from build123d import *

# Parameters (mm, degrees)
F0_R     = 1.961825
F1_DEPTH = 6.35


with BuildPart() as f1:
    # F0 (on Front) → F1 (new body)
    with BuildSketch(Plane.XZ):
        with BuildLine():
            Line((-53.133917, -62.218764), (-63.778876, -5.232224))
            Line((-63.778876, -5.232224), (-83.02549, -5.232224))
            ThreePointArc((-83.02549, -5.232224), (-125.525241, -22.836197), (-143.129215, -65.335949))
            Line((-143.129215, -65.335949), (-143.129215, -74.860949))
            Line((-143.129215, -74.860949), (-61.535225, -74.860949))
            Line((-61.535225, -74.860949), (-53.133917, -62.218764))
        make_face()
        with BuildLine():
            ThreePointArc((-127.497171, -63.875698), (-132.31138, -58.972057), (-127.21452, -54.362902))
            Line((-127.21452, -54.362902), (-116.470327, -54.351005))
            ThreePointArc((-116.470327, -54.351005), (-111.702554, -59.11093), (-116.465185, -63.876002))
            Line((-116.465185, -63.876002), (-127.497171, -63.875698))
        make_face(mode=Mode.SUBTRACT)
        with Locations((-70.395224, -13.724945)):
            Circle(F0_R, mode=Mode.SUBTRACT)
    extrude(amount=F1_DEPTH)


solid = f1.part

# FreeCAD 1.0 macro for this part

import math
import FreeCAD as App
import Part
import Sketcher

V = App.Vector
Q = App.Units.Quantity

doc = App.newDocument("Part")
params = doc.addObject("Spreadsheet::Sheet", "Params")
for row, (alias, value) in enumerate([
    ("sketch1_radius", "0.1875 in"),
    ("sketch1_height", "0.375 in"),
    ("sketch1_length", "0.423 in"),
    ("pad1_length", "0.25 in"),
], start=1):
    params.set(f"A{row}", alias)
    params.set(f"B{row}", "=" + value)
    params.setAlias(f"B{row}", alias)

body = doc.addObject("PartDesign::Body", "Body")

sketch1 = body.newObject("Sketcher::SketchObject", "Sketch")
sketch1.AttachmentSupport = (doc.getObject("XZ_Plane"), [""])
sketch1.MapMode = "FlatFace"
sketch1.addGeometry(Part.LineSegment(V(-53.1, -62.2, 0), V(-63.8, -5.2, 0)), False)
sketch1.addGeometry(Part.LineSegment(V(-63.8, -5.2, 0), V(-83, -5.2, 0)), False)
sketch1.addGeometry(Part.ArcOfCircle(Part.Circle(V(-83, -65.3, 0), V(0, 0, 1), 60.1), math.radians(90), math.radians(180)), False)
sketch1.addGeometry(Part.LineSegment(V(-143.1, -65.3, 0), V(-143.1, -74.9, 0)), False)
sketch1.addGeometry(Part.LineSegment(V(-143.1, -74.9, 0), V(-61.5, -74.9, 0)), False)
sketch1.addGeometry(Part.LineSegment(V(-61.5, -74.9, 0), V(-53.1, -62.2, 0)), False)
sketch1.addGeometry(Part.LineSegment(V(-116.5, -63.9, 0), V(-127.5, -63.9, 0)), False)
sketch1.addGeometry(Part.ArcOfCircle(Part.Circle(V(-127.6, -59.1, 0), V(0, 0, 1), 4.8), math.radians(86), math.radians(271)), False)
sketch1.addGeometry(Part.LineSegment(V(-127.2, -54.4, 0), V(-116.5, -54.4, 0)), False)
sketch1.addGeometry(Part.ArcOfCircle(Part.Circle(V(-116.5, -59.1, 0), V(0, 0, 1), 4.8), math.radians(-90), math.radians(90)), False)
sketch1.addGeometry(Part.Circle(V(-70.4, -13.7, 0), V(0, 0, 1), 2), False)
sketch1.addConstraint(Sketcher.Constraint("Coincident", 0, 2, 1, 1))
sketch1.addConstraint(Sketcher.Constraint("Tangent", 1, 2, 2, 1))
sketch1.addConstraint(Sketcher.Constraint("Tangent", 2, 2, 3, 1))
sketch1.addConstraint(Sketcher.Constraint("Coincident", 3, 2, 4, 1))
sketch1.addConstraint(Sketcher.Constraint("Coincident", 4, 2, 5, 1))
sketch1.addConstraint(Sketcher.Constraint("Coincident", 5, 2, 0, 1))
sketch1.addConstraint(Sketcher.Constraint("Coincident", 6, 2, 7, 2))
sketch1.addConstraint(Sketcher.Constraint("Coincident", 7, 1, 8, 1))
sketch1.addConstraint(Sketcher.Constraint("Tangent", 8, 2, 9, 2))
sketch1.addConstraint(Sketcher.Constraint("Tangent", 9, 1, 6, 1))
sketch1.addConstraint(Sketcher.Constraint("Horizontal", 1))
sketch1.addConstraint(Sketcher.Constraint("Vertical", 3))
sketch1.addConstraint(Sketcher.Constraint("Horizontal", 4))
sketch1.addConstraint(Sketcher.Constraint("Equal", 7, 9))
sketch1.addConstraint(Sketcher.Constraint("Horizontal", 7, 3, 9, 3))
sketch1.addConstraint(Sketcher.Constraint("Radius", 7, Q("0.1875 in")))
sketch1.addConstraint(Sketcher.Constraint("DistanceY", 3, 2, 3, 1, Q("0.375 in")))
sketch1.addConstraint(Sketcher.Constraint("Distance", 8, Q("0.423 in")))
sketch1.addConstraint(Sketcher.Constraint("Diameter", 10, Q("3.92365 mm")))
sketch1.addConstraint(Sketcher.Constraint("Radius", 2, Q("60.103725 mm")))
sketch1.addConstraint(Sketcher.Constraint("DistanceX", 4, 1, 4, 2, Q("81.59399 mm")))
sketch1.addConstraint(Sketcher.Constraint("DistanceY", 7, 3, -1, 1, Q("59.113502 mm")))
sketch1.addConstraint(Sketcher.Constraint("DistanceX", 10, 3, 4, 2, Q("8.859999 mm")))
sketch1.addConstraint(Sketcher.Constraint("DistanceY", 7, 3, 7, 1, Q("4.7506 mm")))
sketch1.addConstraint(Sketcher.Constraint("DistanceX", 1, 2, 1, 1, Q("19.246614 mm")))
sketch1.addConstraint(Sketcher.Constraint("DistanceX", 2, 3, -1, 1, Q("83.02549 mm")))
sketch1.addConstraint(Sketcher.Constraint("DistanceY", 2, 3, -1, 1, Q("65.335949 mm")))
sketch1.addConstraint(Sketcher.Constraint("DistanceX", 7, 3, -1, 1, Q("127.550981 mm")))
sketch1.addConstraint(Sketcher.Constraint("DistanceX", 6, 2, -1, 1, Q("127.497171 mm")))
sketch1.addConstraint(Sketcher.Constraint("DistanceY", 10, 3, 0, 2, Q("8.492721 mm")))
sketch1.addConstraint(Sketcher.Constraint("DistanceY", 5, 2, 10, 3, Q("48.493819 mm")))
sketch1.addConstraint(Sketcher.Constraint("DistanceX", 0, 2, 5, 2, Q("10.644959 mm")))
sketch1.setExpression("Constraints[15]", "Params.sketch1_radius")
sketch1.setExpression("Constraints[16]", "Params.sketch1_height")
sketch1.setExpression("Constraints[17]", "Params.sketch1_length")
pad1 = body.newObject("PartDesign::Pad", "Pad")
pad1.Profile = sketch1
pad1.setExpression("Length", "Params.pad1_length")

doc.recompute()
